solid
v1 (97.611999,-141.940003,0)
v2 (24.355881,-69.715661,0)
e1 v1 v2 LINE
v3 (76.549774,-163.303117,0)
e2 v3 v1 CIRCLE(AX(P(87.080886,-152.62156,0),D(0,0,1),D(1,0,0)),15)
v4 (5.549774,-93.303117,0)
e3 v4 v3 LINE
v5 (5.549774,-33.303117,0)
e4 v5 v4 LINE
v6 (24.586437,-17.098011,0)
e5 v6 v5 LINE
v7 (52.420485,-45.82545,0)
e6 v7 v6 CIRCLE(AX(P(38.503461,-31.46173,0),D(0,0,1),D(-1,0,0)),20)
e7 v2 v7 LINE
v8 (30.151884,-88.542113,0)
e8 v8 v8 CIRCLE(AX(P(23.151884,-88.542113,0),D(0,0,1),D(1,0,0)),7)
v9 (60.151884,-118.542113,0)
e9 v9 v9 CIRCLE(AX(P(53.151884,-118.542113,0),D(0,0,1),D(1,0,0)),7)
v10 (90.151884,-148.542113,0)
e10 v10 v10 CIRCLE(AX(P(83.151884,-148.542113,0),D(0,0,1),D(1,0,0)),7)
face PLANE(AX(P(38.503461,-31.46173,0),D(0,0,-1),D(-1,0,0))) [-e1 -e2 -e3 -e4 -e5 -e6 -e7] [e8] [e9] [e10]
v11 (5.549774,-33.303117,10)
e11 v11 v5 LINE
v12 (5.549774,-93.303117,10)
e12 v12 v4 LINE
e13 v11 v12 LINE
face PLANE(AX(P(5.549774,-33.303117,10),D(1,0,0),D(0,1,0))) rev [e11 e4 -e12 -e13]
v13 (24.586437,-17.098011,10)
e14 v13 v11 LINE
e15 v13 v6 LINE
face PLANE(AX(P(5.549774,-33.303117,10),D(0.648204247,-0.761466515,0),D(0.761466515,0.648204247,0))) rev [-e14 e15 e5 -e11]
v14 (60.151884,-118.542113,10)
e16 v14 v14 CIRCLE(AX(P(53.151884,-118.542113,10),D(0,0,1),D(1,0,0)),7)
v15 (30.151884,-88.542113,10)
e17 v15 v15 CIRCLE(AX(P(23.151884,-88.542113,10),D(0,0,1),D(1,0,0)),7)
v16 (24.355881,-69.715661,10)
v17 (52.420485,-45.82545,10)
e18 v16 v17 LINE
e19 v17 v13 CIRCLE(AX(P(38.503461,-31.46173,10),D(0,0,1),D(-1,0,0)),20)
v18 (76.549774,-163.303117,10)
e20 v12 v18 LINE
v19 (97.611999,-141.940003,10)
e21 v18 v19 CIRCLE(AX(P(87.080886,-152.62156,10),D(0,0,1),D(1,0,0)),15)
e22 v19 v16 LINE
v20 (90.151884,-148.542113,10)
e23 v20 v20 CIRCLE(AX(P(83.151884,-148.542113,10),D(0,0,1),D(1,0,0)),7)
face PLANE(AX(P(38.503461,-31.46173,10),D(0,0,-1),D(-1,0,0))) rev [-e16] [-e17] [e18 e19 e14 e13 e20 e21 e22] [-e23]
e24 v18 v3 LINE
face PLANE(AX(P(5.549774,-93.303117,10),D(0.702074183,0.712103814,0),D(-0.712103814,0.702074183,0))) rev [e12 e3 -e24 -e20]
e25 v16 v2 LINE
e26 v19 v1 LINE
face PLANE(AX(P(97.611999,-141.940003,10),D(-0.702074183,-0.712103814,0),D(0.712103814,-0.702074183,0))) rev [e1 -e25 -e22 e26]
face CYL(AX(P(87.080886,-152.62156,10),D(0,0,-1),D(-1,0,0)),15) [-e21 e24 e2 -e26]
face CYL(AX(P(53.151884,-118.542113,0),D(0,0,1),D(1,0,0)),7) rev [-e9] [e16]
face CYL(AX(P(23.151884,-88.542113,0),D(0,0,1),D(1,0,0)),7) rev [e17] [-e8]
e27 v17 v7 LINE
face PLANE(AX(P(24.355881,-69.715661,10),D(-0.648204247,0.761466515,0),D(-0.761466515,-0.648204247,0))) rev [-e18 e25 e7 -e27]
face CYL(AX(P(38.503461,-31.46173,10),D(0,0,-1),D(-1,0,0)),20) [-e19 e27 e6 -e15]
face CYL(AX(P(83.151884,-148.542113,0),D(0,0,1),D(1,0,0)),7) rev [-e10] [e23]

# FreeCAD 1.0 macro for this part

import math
import FreeCAD as App
import Part
import Sketcher
from FreeCAD import Vector
Q = App.Units.Quantity

doc = App.newDocument("Part")
params = doc.addObject("Spreadsheet::Sheet", "Params")
for row, (alias, value) in enumerate([
    ("sketch1_radius", "15 mm"),
    ("sketch1_radius2", "20 mm"),
    ("sketch1_height", "60 mm"),
    ("sketch1_length", "25 mm"),
    ("pad1_length", "10 mm"),
    ("sketch2_diameter", "14 mm"),
], start=1):
    params.set(f"A{row}", alias)
    params.set(f"B{row}", "=" + value)
    params.setAlias(f"B{row}", alias)

body = doc.addObject("PartDesign::Body", "Body")

sketch1 = doc.addObject("Sketcher::SketchObject", "Sketch")
body.addObject(sketch1)
sketch1.AttachmentSupport = (doc.XY_Plane, [""])
sketch1.MapMode = "FlatFace"
sketch1.addGeometry(Part.LineSegment(Vector(5.549774, -33.303117, 0), Vector(5.549774, -93.303117, 0)), False)
sketch1.addGeometry(Part.LineSegment(Vector(5.549774, -93.303117, 0), Vector(76.549774, -163.303117, 0)), False)
sketch1.addGeometry(Part.ArcOfCircle(Part.Circle(Vector(87.080886, -152.62156, 0), Vector(0, 0, 1), 15), math.radians(-134.593654), math.radians(45.406346)), False)
sketch1.addGeometry(Part.LineSegment(Vector(97.611999, -141.940003, 0), Vector(24.355881, -69.715661, 0)), False)
sketch1.addGeometry(Part.LineSegment(Vector(24.355881, -69.715661, 0), Vector(52.420485, -45.82545, 0)), False)
sketch1.addGeometry(Part.ArcOfCircle(Part.Circle(Vector(38.503461, -31.46173, 0), Vector(0, 0, 1), 20), math.radians(-45.904913), math.radians(134.095087)), False)
sketch1.addGeometry(Part.LineSegment(Vector(24.586437, -17.098011, 0), Vector(5.549774, -33.303117, 0)), False)
sketch1.addConstraint(Sketcher.Constraint("Coincident", 0, 2, 1, 1))
sketch1.addConstraint(Sketcher.Constraint("Tangent", 1, 2, 2, 1))
sketch1.addConstraint(Sketcher.Constraint("Tangent", 2, 2, 3, 1))
sketch1.addConstraint(Sketcher.Constraint("Coincident", 3, 2, 4, 1))
sketch1.addConstraint(Sketcher.Constraint("Coincident", 4, 2, 5, 1))
sketch1.addConstraint(Sketcher.Constraint("Coincident", 5, 2, 6, 1))
sketch1.addConstraint(Sketcher.Constraint("Coincident", 6, 2, 0, 1))
sketch1.addConstraint(Sketcher.Constraint("Vertical", 0))
sketch1.addConstraint(Sketcher.Constraint("Parallel", 1, 3))
sketch1.addConstraint(Sketcher.Constraint("Parallel", 4, 6))
sketch1.addConstraint(Sketcher.Constraint("Radius", 2, Q("15 mm")))
sketch1.addConstraint(Sketcher.Constraint("Radius", 5, Q("20 mm")))
sketch1.addConstraint(Sketcher.Constraint("DistanceY", 0, 2, 0, 1, Q("60 mm")))
sketch1.addConstraint(Sketcher.Constraint("Distance", 6, Q("25 mm")))
sketch1.addConstraint(Sketcher.Constraint("DistanceX", 0, 2, 1, 2, Q("71 mm")))
sketch1.addConstraint(Sketcher.Constraint("DistanceY", 1, 2, 0, 2, Q("70 mm")))
sketch1.addConstraint(Sketcher.Constraint("DistanceX", -1, 1, 2, 2, Q("97.611999 mm")))
sketch1.addConstraint(Sketcher.Constraint("DistanceY", 2, 3, 3, 2, Q("82.905899 mm")))
sketch1.addConstraint(Sketcher.Constraint("DistanceX", 4, 2, 2, 3, Q("34.660401 mm")))
sketch1.addConstraint(Sketcher.Constraint("DistanceY", 2, 3, -1, 1, Q("152.62156 mm")))
sketch1.addConstraint(Sketcher.Constraint("DistanceX", -1, 1, 5, 3, Q("38.503461 mm")))
sketch1.setExpression("Constraints[10]", "Params.sketch1_radius")
sketch1.setExpression("Constraints[11]", "Params.sketch1_radius2")
sketch1.setExpression("Constraints[12]", "Params.sketch1_height")
sketch1.setExpression("Constraints[13]", "Params.sketch1_length")
pad1 = doc.addObject("PartDesign::Pad", "Pad")
body.addObject(pad1)
pad1.Profile = sketch1
pad1.setExpression("Length", "Params.pad1_length")

sketch2 = doc.addObject("Sketcher::SketchObject", "Sketch001")
body.addObject(sketch2)
sketch2.AttachmentSupport = (doc.XY_Plane, [""])
sketch2.MapMode = "FlatFace"
sketch2.AttachmentOffset = App.Placement(Vector(0, 0, 10), App.Rotation())
sketch2.addGeometry(Part.Circle(Vector(23.151884, -88.542113, 0), Vector(0, 0, 1), 7), False)
sketch2.addGeometry(Part.Circle(Vector(53.151884, -118.542113, 0), Vector(0, 0, 1), 7), False)
sketch2.addGeometry(Part.Circle(Vector(83.151884, -148.542113, 0), Vector(0, 0, 1), 7), False)
sketch2.addConstraint(Sketcher.Constraint("Equal", 0, 1))
sketch2.addConstraint(Sketcher.Constraint("Equal", 1, 2))
sketch2.addConstraint(Sketcher.Constraint("Diameter", 0, Q("14 mm")))
sketch2.addConstraint(Sketcher.Constraint("DistanceX", 0, 3, 1, 3, Q("30 mm")))
sketch2.addConstraint(Sketcher.Constraint("DistanceY", 1, 3, 0, 3, Q("30 mm")))
sketch2.addConstraint(Sketcher.Constraint("DistanceX", 1, 3, 2, 3, Q("30 mm")))
sketch2.addConstraint(Sketcher.Constraint("DistanceY", 2, 3, 1, 3, Q("30 mm")))
sketch2.addConstraint(Sketcher.Constraint("DistanceX", -1, 1, 0, 3, Q("23.151884 mm")))
sketch2.addConstraint(Sketcher.Constraint("DistanceY", 0, 3, -1, 1, Q("88.542113 mm")))
sketch2.setExpression("Constraints[2]", "Params.sketch2_diameter")
pocket1 = doc.addObject("PartDesign::Pocket", "Pocket")
body.addObject(pocket1)
pocket1.Profile = sketch2
pocket1.Type = "ThroughAll"

doc.recompute()
